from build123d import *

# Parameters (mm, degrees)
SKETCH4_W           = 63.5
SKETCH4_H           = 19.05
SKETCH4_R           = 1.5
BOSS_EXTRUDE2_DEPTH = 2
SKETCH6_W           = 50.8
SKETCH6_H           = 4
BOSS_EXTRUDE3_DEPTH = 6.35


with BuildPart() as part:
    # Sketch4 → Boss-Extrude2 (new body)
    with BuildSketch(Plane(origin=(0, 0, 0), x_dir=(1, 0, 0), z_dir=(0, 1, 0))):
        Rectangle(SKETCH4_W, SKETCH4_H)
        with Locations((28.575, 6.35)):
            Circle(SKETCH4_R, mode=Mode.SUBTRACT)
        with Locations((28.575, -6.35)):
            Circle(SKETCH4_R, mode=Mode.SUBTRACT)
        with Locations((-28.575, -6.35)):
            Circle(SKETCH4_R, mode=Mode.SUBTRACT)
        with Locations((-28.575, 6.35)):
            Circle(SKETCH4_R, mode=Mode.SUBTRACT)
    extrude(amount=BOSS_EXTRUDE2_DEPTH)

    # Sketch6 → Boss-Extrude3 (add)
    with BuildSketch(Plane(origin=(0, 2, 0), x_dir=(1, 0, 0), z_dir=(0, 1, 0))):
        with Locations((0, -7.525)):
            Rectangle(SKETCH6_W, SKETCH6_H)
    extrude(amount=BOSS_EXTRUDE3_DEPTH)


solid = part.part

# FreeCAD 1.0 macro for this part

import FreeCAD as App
import Part
import Sketcher
Q = App.Units.Quantity


def add_polygon(sketch, points):
    """Adds a closed chain of lines whose ends are joined by coincident constraints."""
    first, n = sketch.GeometryCount, len(points)
    for a, b in zip(points, points[1:] + points[:1]):
        sketch.addGeometry(Part.LineSegment(App.Vector(*a, 0), App.Vector(*b, 0)), False)
    for i in range(n):
        sketch.addConstraint(Sketcher.Constraint("Coincident", first + i, 2, first + (i + 1) % n, 1))

doc = App.newDocument("Part")
body = doc.addObject("PartDesign::Body", "Body")

sketch1 = body.newObject("Sketcher::SketchObject", "Sketch")
sketch1.AttachmentSupport = (doc.getObject("XZ_Plane"), [""])
sketch1.MapMode = "FlatFace"
add_polygon(sketch1, [(-31.8, -9.5), (-31.8, 9.5), (31.8, 9.5), (31.8, -9.5)])
sketch1.addGeometry(Part.Circle(App.Vector(-28.6, 6.3, 0), App.Vector(0, 0, 1), 1.5), False)
sketch1.addGeometry(Part.Circle(App.Vector(28.6, 6.3, 0), App.Vector(0, 0, 1), 1.5), False)
sketch1.addGeometry(Part.Circle(App.Vector(-28.6, -6.3, 0), App.Vector(0, 0, 1), 1.5), False)
sketch1.addGeometry(Part.Circle(App.Vector(28.6, -6.3, 0), App.Vector(0, 0, 1), 1.5), False)
sketch1.addConstraint([
    Sketcher.Constraint("Vertical", 0),
    Sketcher.Constraint("Horizontal", 1),
    Sketcher.Constraint("Vertical", 2),
    Sketcher.Constraint("Horizontal", 3),
    Sketcher.Constraint("Equal", 4, 5),
    Sketcher.Constraint("Equal", 5, 6),
    Sketcher.Constraint("Equal", 6, 7),
    Sketcher.Constraint("Symmetric", 5, 3, 6, 3, -1, 1),
    Sketcher.Constraint("Symmetric", 4, 3, 7, 3, -1, 1),
    Sketcher.Constraint("Symmetric", 0, 2, 2, 2, -1, 1),
    Sketcher.Constraint("Symmetric", 4, 3, 5, 3, -2),
    Sketcher.Constraint("DistanceX", 1, 1, 1, 2, Q("2.5 in")),
    Sketcher.Constraint("DistanceY", 0, 1, 0, 2, Q("0.75 in")),
    Sketcher.Constraint("DistanceY", 6, 3, 4, 3, Q("0.5 in")),
    Sketcher.Constraint("Diameter", 4, Q("3 mm")),
    Sketcher.Constraint("DistanceX", 4, 3, 5, 3, Q("2.25 in")),
])
pad1 = body.newObject("PartDesign::Pad", "Pad")
pad1.Profile = sketch1
pad1.Length = 2
pad1.Reversed = True

sketch2 = body.newObject("Sketcher::SketchObject", "Sketch001")
sketch2.AttachmentSupport = (doc.getObject("XZ_Plane"), [""])
sketch2.MapMode = "FlatFace"
sketch2.AttachmentOffset = App.Placement(App.Vector(0, 0, -2), App.Rotation())
add_polygon(sketch2, [(-25.4, 5.5), (-25.4, 9.5), (25.4, 9.5), (25.4, 5.5)])
sketch2.addConstraint([
    Sketcher.Constraint("Vertical", 0),
    Sketcher.Constraint("Horizontal", 1),
    Sketcher.Constraint("Vertical", 2),
    Sketcher.Constraint("Horizontal", 3),
    Sketcher.Constraint("DistanceX", 1, 1, 1, 2, Q("2 in")),
    Sketcher.Constraint("DistanceX", 0, 2, -1, 1, Q("1 in")),
    Sketcher.Constraint("DistanceY", -1, 1, 0, 2, Q("0.375 in")),
    Sketcher.Constraint("DistanceY", 0, 1, 0, 2, Q("4 mm")),
])
pad2 = body.newObject("PartDesign::Pad", "Pad001")
pad2.Profile = sketch2
pad2.Length = Q("0.25 in")
pad2.Reversed = True

doc.recompute()
